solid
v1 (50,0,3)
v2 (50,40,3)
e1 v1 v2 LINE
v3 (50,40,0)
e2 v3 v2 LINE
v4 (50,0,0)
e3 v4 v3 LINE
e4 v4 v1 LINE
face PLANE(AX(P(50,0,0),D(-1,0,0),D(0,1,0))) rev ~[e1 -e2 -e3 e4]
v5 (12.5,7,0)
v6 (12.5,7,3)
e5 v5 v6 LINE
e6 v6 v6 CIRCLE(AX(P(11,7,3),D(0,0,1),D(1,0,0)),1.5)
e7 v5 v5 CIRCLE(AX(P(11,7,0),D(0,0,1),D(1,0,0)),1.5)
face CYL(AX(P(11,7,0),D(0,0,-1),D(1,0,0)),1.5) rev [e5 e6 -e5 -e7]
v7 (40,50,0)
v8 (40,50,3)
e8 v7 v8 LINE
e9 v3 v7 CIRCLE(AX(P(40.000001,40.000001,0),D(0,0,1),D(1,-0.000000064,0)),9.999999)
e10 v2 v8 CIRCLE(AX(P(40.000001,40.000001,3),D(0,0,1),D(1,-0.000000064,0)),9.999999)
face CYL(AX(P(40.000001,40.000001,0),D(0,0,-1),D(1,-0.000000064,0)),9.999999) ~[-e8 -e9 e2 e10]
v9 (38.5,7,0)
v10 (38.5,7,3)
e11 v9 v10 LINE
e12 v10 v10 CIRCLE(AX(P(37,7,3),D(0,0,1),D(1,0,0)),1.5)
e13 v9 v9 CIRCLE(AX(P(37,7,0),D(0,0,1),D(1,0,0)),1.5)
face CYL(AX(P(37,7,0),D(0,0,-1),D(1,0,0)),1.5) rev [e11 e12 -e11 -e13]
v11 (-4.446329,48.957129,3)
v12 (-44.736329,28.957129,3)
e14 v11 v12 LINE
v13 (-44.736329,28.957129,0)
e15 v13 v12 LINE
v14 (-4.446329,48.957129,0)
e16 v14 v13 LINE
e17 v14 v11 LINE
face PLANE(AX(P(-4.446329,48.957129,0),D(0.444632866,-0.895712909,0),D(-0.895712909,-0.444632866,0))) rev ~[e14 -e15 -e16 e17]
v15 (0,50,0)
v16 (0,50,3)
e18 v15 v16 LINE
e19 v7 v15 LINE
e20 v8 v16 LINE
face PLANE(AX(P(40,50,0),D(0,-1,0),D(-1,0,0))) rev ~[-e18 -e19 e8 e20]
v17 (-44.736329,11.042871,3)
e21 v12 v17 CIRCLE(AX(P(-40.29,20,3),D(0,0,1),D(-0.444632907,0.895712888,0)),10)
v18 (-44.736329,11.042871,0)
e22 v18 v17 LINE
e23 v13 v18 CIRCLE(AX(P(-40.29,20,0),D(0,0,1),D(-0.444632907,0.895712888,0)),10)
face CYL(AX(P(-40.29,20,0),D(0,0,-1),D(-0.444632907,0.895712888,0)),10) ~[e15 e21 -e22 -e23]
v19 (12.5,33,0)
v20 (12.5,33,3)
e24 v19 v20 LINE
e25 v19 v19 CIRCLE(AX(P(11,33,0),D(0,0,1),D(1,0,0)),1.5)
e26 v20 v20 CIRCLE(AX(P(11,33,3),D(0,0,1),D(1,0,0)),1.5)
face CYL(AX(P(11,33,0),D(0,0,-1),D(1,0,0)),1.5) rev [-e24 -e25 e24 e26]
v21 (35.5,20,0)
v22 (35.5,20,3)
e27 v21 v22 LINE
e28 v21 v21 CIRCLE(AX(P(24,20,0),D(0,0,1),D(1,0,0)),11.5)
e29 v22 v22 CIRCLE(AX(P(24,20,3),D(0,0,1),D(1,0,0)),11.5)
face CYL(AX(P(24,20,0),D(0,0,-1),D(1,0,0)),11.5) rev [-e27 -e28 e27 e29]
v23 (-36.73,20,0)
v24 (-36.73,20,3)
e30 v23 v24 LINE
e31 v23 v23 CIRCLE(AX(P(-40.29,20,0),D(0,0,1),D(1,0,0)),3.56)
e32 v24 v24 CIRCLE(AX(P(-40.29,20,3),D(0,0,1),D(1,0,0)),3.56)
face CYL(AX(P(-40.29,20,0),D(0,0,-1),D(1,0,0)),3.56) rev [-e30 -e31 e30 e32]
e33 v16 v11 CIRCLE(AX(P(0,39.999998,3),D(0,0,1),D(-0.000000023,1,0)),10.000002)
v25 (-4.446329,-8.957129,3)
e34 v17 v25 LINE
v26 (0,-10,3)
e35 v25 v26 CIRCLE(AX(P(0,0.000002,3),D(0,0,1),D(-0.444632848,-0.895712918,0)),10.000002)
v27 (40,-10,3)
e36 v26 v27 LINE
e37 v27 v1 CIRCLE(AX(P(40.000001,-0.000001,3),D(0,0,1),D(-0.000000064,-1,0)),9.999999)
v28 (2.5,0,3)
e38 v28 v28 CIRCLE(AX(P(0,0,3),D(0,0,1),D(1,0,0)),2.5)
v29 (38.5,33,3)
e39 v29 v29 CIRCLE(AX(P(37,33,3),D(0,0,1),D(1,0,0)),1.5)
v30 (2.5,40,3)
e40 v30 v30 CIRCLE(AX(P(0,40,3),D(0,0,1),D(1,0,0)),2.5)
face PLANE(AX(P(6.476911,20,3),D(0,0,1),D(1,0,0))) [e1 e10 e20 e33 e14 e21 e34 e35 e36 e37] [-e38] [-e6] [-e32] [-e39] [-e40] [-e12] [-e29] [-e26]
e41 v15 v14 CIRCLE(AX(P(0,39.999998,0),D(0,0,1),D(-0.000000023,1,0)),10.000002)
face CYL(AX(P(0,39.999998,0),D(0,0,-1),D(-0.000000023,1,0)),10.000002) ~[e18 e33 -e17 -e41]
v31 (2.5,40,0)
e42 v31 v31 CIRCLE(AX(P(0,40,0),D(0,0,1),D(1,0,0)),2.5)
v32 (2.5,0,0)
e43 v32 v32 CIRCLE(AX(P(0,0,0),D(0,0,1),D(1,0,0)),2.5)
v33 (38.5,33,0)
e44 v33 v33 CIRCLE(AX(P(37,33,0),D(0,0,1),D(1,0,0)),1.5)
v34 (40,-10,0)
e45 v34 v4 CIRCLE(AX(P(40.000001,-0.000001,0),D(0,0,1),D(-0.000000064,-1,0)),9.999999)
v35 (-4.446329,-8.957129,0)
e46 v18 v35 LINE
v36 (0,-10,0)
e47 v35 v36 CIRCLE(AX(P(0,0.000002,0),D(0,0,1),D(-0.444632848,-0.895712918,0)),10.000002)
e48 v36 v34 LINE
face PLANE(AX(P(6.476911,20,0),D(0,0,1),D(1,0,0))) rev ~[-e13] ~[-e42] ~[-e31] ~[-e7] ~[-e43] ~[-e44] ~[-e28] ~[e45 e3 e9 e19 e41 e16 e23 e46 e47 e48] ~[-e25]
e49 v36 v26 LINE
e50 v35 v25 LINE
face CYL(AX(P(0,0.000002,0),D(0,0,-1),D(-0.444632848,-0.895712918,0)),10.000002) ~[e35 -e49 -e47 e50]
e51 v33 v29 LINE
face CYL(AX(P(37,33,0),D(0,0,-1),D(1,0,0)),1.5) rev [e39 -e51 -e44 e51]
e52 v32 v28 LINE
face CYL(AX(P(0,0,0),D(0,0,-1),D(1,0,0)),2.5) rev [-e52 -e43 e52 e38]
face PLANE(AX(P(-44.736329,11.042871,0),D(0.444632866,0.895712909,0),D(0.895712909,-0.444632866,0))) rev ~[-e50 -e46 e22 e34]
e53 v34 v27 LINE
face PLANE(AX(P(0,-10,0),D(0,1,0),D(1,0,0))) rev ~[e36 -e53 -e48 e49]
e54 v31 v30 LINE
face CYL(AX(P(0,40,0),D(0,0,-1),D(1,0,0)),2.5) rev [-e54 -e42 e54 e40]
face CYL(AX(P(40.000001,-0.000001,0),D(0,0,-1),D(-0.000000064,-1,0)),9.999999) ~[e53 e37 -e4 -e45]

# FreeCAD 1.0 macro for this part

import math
import FreeCAD as App
import Part
import Sketcher

V = App.Vector

doc = App.newDocument("Part")
body = doc.addObject("PartDesign::Body", "Body")

sketch1 = body.newObject("Sketcher::SketchObject", "Sketch")
sketch1.AttachmentSupport = (doc.getObject("XY_Plane"), [""])
sketch1.MapMode = "FlatFace"
sketch1.addGeometry(Part.LineSegment(V(40, 50, 0), V(0, 50, 0)), False)
sketch1.addGeometry(Part.ArcOfCircle(Part.Circle(V(0, 40, 0), V(0, 0, 1), 10), math.radians(90), math.radians(116)), False)
sketch1.addGeometry(Part.LineSegment(V(-4.4, 49, 0), V(-44.7, 29, 0)), False)
sketch1.addGeometry(Part.ArcOfCircle(Part.Circle(V(-40.3, 20, 0), V(0, 0, 1), 10), math.radians(116), math.radians(244)), False)
sketch1.addGeometry(Part.LineSegment(V(-44.7, 11, 0), V(-4.4, -9, 0)), False)
sketch1.addGeometry(Part.ArcOfCircle(Part.Circle(V(0, 0, 0), V(0, 0, 1), 10), math.radians(-116), math.radians(-90)), False)
sketch1.addGeometry(Part.LineSegment(V(0, -10, 0), V(40, -10, 0)), False)
sketch1.addGeometry(Part.ArcOfCircle(Part.Circle(V(40, 0, 0), V(0, 0, 1), 10), math.radians(-90), math.radians(0)), False)
sketch1.addGeometry(Part.LineSegment(V(50, 0, 0), V(50, 40, 0)), False)
sketch1.addGeometry(Part.ArcOfCircle(Part.Circle(V(40, 40, 0), V(0, 0, 1), 10), math.radians(0), math.radians(90)), False)
sketch1.addGeometry(Part.Circle(V(0, 0, 0), V(0, 0, 1), 2.5), False)
sketch1.addGeometry(Part.Circle(V(11, 7, 0), V(0, 0, 1), 1.5), False)
sketch1.addGeometry(Part.Circle(V(37, 7, 0), V(0, 0, 1), 1.5), False)
sketch1.addGeometry(Part.Circle(V(-40.3, 20, 0), V(0, 0, 1), 3.6), False)
sketch1.addGeometry(Part.Circle(V(24, 20, 0), V(0, 0, 1), 11.5), False)
sketch1.addGeometry(Part.Circle(V(11, 33, 0), V(0, 0, 1), 1.5), False)
sketch1.addGeometry(Part.Circle(V(0, 40, 0), V(0, 0, 1), 2.5), False)
sketch1.addGeometry(Part.Circle(V(37, 33, 0), V(0, 0, 1), 1.5), False)
sketch1.addConstraint(Sketcher.Constraint("Tangent", 0, 2, 1, 1))
sketch1.addConstraint(Sketcher.Constraint("Tangent", 1, 2, 2, 1))
sketch1.addConstraint(Sketcher.Constraint("Tangent", 2, 2, 3, 1))
sketch1.addConstraint(Sketcher.Constraint("Tangent", 3, 2, 4, 1))
sketch1.addConstraint(Sketcher.Constraint("Tangent", 4, 2, 5, 1))
sketch1.addConstraint(Sketcher.Constraint("Tangent", 5, 2, 6, 1))
sketch1.addConstraint(Sketcher.Constraint("Tangent", 6, 2, 7, 1))
sketch1.addConstraint(Sketcher.Constraint("Tangent", 7, 2, 8, 1))
sketch1.addConstraint(Sketcher.Constraint("Tangent", 8, 2, 9, 1))
sketch1.addConstraint(Sketcher.Constraint("Tangent", 9, 2, 0, 1))
sketch1.addConstraint(Sketcher.Constraint("Horizontal", 0))
sketch1.addConstraint(Sketcher.Constraint("Horizontal", 6))
sketch1.addConstraint(Sketcher.Constraint("Vertical", 8))
sketch1.addConstraint(Sketcher.Constraint("Coincident", 5, 3, -1, 1))
sketch1.addConstraint(Sketcher.Constraint("Coincident", 10, 3, -1, 1))
sketch1.addConstraint(Sketcher.Constraint("Coincident", 13, 3, 3, 3))
sketch1.addConstraint(Sketcher.Constraint("Coincident", 16, 3, 1, 3))
sketch1.addConstraint(Sketcher.Constraint("Equal", 1, 3))
sketch1.addConstraint(Sketcher.Constraint("Equal", 3, 5))
sketch1.addConstraint(Sketcher.Constraint("Equal", 3, 7))
sketch1.addConstraint(Sketcher.Constraint("Equal", 7, 9))
sketch1.addConstraint(Sketcher.Constraint("Equal", 11, 12))
sketch1.addConstraint(Sketcher.Constraint("Equal", 12, 15))
sketch1.addConstraint(Sketcher.Constraint("Equal", 10, 16))
sketch1.addConstraint(Sketcher.Constraint("Equal", 15, 17))
sketch1.addConstraint(Sketcher.Constraint("PointOnObject", 1, 3, -2))
sketch1.addConstraint(Sketcher.Constraint("Horizontal", 11, 3, 12, 3))
sketch1.addConstraint(Sketcher.Constraint("Horizontal", 13, 3, 14, 3))
sketch1.addConstraint(Sketcher.Constraint("Horizontal", 15, 3, 17, 3))
sketch1.addConstraint(Sketcher.Constraint("Vertical", 11, 3, 15, 3))
sketch1.addConstraint(Sketcher.Constraint("Vertical", 12, 3, 17, 3))
sketch1.addConstraint(Sketcher.Constraint("Vertical", 2, 2, 3, 2))
sketch1.addConstraint(Sketcher.Constraint("Equal", 6, 8))
sketch1.addConstraint(Sketcher.Constraint("Diameter", 10, 5.0))
sketch1.addConstraint(Sketcher.Constraint("Diameter", 11, 3.0))
sketch1.addConstraint(Sketcher.Constraint("Diameter", 14, 23.0))
sketch1.addConstraint(Sketcher.Constraint("Radius", 1, 10.000002))
sketch1.addConstraint(Sketcher.Constraint("Diameter", 13, 7.12))
sketch1.addConstraint(Sketcher.Constraint("DistanceX", 0, 2, 0, 1, 40.0))
sketch1.addConstraint(Sketcher.Constraint("DistanceX", -1, 1, 11, 3, 11.0))
sketch1.addConstraint(Sketcher.Constraint("DistanceY", -1, 1, 11, 3, 7.0))
sketch1.addConstraint(Sketcher.Constraint("DistanceX", -1, 1, 12, 3, 37.0))
sketch1.addConstraint(Sketcher.Constraint("DistanceX", -1, 1, 14, 3, 24.0))
sketch1.addConstraint(Sketcher.Constraint("DistanceY", -1, 1, 15, 3, 33.0))
sketch1.addConstraint(Sketcher.Constraint("DistanceX", 3, 3, -1, 1, 40.29))
pad1 = body.newObject("PartDesign::Pad", "Pad")
pad1.Profile = sketch1
pad1.Length = 3

doc.recompute()
